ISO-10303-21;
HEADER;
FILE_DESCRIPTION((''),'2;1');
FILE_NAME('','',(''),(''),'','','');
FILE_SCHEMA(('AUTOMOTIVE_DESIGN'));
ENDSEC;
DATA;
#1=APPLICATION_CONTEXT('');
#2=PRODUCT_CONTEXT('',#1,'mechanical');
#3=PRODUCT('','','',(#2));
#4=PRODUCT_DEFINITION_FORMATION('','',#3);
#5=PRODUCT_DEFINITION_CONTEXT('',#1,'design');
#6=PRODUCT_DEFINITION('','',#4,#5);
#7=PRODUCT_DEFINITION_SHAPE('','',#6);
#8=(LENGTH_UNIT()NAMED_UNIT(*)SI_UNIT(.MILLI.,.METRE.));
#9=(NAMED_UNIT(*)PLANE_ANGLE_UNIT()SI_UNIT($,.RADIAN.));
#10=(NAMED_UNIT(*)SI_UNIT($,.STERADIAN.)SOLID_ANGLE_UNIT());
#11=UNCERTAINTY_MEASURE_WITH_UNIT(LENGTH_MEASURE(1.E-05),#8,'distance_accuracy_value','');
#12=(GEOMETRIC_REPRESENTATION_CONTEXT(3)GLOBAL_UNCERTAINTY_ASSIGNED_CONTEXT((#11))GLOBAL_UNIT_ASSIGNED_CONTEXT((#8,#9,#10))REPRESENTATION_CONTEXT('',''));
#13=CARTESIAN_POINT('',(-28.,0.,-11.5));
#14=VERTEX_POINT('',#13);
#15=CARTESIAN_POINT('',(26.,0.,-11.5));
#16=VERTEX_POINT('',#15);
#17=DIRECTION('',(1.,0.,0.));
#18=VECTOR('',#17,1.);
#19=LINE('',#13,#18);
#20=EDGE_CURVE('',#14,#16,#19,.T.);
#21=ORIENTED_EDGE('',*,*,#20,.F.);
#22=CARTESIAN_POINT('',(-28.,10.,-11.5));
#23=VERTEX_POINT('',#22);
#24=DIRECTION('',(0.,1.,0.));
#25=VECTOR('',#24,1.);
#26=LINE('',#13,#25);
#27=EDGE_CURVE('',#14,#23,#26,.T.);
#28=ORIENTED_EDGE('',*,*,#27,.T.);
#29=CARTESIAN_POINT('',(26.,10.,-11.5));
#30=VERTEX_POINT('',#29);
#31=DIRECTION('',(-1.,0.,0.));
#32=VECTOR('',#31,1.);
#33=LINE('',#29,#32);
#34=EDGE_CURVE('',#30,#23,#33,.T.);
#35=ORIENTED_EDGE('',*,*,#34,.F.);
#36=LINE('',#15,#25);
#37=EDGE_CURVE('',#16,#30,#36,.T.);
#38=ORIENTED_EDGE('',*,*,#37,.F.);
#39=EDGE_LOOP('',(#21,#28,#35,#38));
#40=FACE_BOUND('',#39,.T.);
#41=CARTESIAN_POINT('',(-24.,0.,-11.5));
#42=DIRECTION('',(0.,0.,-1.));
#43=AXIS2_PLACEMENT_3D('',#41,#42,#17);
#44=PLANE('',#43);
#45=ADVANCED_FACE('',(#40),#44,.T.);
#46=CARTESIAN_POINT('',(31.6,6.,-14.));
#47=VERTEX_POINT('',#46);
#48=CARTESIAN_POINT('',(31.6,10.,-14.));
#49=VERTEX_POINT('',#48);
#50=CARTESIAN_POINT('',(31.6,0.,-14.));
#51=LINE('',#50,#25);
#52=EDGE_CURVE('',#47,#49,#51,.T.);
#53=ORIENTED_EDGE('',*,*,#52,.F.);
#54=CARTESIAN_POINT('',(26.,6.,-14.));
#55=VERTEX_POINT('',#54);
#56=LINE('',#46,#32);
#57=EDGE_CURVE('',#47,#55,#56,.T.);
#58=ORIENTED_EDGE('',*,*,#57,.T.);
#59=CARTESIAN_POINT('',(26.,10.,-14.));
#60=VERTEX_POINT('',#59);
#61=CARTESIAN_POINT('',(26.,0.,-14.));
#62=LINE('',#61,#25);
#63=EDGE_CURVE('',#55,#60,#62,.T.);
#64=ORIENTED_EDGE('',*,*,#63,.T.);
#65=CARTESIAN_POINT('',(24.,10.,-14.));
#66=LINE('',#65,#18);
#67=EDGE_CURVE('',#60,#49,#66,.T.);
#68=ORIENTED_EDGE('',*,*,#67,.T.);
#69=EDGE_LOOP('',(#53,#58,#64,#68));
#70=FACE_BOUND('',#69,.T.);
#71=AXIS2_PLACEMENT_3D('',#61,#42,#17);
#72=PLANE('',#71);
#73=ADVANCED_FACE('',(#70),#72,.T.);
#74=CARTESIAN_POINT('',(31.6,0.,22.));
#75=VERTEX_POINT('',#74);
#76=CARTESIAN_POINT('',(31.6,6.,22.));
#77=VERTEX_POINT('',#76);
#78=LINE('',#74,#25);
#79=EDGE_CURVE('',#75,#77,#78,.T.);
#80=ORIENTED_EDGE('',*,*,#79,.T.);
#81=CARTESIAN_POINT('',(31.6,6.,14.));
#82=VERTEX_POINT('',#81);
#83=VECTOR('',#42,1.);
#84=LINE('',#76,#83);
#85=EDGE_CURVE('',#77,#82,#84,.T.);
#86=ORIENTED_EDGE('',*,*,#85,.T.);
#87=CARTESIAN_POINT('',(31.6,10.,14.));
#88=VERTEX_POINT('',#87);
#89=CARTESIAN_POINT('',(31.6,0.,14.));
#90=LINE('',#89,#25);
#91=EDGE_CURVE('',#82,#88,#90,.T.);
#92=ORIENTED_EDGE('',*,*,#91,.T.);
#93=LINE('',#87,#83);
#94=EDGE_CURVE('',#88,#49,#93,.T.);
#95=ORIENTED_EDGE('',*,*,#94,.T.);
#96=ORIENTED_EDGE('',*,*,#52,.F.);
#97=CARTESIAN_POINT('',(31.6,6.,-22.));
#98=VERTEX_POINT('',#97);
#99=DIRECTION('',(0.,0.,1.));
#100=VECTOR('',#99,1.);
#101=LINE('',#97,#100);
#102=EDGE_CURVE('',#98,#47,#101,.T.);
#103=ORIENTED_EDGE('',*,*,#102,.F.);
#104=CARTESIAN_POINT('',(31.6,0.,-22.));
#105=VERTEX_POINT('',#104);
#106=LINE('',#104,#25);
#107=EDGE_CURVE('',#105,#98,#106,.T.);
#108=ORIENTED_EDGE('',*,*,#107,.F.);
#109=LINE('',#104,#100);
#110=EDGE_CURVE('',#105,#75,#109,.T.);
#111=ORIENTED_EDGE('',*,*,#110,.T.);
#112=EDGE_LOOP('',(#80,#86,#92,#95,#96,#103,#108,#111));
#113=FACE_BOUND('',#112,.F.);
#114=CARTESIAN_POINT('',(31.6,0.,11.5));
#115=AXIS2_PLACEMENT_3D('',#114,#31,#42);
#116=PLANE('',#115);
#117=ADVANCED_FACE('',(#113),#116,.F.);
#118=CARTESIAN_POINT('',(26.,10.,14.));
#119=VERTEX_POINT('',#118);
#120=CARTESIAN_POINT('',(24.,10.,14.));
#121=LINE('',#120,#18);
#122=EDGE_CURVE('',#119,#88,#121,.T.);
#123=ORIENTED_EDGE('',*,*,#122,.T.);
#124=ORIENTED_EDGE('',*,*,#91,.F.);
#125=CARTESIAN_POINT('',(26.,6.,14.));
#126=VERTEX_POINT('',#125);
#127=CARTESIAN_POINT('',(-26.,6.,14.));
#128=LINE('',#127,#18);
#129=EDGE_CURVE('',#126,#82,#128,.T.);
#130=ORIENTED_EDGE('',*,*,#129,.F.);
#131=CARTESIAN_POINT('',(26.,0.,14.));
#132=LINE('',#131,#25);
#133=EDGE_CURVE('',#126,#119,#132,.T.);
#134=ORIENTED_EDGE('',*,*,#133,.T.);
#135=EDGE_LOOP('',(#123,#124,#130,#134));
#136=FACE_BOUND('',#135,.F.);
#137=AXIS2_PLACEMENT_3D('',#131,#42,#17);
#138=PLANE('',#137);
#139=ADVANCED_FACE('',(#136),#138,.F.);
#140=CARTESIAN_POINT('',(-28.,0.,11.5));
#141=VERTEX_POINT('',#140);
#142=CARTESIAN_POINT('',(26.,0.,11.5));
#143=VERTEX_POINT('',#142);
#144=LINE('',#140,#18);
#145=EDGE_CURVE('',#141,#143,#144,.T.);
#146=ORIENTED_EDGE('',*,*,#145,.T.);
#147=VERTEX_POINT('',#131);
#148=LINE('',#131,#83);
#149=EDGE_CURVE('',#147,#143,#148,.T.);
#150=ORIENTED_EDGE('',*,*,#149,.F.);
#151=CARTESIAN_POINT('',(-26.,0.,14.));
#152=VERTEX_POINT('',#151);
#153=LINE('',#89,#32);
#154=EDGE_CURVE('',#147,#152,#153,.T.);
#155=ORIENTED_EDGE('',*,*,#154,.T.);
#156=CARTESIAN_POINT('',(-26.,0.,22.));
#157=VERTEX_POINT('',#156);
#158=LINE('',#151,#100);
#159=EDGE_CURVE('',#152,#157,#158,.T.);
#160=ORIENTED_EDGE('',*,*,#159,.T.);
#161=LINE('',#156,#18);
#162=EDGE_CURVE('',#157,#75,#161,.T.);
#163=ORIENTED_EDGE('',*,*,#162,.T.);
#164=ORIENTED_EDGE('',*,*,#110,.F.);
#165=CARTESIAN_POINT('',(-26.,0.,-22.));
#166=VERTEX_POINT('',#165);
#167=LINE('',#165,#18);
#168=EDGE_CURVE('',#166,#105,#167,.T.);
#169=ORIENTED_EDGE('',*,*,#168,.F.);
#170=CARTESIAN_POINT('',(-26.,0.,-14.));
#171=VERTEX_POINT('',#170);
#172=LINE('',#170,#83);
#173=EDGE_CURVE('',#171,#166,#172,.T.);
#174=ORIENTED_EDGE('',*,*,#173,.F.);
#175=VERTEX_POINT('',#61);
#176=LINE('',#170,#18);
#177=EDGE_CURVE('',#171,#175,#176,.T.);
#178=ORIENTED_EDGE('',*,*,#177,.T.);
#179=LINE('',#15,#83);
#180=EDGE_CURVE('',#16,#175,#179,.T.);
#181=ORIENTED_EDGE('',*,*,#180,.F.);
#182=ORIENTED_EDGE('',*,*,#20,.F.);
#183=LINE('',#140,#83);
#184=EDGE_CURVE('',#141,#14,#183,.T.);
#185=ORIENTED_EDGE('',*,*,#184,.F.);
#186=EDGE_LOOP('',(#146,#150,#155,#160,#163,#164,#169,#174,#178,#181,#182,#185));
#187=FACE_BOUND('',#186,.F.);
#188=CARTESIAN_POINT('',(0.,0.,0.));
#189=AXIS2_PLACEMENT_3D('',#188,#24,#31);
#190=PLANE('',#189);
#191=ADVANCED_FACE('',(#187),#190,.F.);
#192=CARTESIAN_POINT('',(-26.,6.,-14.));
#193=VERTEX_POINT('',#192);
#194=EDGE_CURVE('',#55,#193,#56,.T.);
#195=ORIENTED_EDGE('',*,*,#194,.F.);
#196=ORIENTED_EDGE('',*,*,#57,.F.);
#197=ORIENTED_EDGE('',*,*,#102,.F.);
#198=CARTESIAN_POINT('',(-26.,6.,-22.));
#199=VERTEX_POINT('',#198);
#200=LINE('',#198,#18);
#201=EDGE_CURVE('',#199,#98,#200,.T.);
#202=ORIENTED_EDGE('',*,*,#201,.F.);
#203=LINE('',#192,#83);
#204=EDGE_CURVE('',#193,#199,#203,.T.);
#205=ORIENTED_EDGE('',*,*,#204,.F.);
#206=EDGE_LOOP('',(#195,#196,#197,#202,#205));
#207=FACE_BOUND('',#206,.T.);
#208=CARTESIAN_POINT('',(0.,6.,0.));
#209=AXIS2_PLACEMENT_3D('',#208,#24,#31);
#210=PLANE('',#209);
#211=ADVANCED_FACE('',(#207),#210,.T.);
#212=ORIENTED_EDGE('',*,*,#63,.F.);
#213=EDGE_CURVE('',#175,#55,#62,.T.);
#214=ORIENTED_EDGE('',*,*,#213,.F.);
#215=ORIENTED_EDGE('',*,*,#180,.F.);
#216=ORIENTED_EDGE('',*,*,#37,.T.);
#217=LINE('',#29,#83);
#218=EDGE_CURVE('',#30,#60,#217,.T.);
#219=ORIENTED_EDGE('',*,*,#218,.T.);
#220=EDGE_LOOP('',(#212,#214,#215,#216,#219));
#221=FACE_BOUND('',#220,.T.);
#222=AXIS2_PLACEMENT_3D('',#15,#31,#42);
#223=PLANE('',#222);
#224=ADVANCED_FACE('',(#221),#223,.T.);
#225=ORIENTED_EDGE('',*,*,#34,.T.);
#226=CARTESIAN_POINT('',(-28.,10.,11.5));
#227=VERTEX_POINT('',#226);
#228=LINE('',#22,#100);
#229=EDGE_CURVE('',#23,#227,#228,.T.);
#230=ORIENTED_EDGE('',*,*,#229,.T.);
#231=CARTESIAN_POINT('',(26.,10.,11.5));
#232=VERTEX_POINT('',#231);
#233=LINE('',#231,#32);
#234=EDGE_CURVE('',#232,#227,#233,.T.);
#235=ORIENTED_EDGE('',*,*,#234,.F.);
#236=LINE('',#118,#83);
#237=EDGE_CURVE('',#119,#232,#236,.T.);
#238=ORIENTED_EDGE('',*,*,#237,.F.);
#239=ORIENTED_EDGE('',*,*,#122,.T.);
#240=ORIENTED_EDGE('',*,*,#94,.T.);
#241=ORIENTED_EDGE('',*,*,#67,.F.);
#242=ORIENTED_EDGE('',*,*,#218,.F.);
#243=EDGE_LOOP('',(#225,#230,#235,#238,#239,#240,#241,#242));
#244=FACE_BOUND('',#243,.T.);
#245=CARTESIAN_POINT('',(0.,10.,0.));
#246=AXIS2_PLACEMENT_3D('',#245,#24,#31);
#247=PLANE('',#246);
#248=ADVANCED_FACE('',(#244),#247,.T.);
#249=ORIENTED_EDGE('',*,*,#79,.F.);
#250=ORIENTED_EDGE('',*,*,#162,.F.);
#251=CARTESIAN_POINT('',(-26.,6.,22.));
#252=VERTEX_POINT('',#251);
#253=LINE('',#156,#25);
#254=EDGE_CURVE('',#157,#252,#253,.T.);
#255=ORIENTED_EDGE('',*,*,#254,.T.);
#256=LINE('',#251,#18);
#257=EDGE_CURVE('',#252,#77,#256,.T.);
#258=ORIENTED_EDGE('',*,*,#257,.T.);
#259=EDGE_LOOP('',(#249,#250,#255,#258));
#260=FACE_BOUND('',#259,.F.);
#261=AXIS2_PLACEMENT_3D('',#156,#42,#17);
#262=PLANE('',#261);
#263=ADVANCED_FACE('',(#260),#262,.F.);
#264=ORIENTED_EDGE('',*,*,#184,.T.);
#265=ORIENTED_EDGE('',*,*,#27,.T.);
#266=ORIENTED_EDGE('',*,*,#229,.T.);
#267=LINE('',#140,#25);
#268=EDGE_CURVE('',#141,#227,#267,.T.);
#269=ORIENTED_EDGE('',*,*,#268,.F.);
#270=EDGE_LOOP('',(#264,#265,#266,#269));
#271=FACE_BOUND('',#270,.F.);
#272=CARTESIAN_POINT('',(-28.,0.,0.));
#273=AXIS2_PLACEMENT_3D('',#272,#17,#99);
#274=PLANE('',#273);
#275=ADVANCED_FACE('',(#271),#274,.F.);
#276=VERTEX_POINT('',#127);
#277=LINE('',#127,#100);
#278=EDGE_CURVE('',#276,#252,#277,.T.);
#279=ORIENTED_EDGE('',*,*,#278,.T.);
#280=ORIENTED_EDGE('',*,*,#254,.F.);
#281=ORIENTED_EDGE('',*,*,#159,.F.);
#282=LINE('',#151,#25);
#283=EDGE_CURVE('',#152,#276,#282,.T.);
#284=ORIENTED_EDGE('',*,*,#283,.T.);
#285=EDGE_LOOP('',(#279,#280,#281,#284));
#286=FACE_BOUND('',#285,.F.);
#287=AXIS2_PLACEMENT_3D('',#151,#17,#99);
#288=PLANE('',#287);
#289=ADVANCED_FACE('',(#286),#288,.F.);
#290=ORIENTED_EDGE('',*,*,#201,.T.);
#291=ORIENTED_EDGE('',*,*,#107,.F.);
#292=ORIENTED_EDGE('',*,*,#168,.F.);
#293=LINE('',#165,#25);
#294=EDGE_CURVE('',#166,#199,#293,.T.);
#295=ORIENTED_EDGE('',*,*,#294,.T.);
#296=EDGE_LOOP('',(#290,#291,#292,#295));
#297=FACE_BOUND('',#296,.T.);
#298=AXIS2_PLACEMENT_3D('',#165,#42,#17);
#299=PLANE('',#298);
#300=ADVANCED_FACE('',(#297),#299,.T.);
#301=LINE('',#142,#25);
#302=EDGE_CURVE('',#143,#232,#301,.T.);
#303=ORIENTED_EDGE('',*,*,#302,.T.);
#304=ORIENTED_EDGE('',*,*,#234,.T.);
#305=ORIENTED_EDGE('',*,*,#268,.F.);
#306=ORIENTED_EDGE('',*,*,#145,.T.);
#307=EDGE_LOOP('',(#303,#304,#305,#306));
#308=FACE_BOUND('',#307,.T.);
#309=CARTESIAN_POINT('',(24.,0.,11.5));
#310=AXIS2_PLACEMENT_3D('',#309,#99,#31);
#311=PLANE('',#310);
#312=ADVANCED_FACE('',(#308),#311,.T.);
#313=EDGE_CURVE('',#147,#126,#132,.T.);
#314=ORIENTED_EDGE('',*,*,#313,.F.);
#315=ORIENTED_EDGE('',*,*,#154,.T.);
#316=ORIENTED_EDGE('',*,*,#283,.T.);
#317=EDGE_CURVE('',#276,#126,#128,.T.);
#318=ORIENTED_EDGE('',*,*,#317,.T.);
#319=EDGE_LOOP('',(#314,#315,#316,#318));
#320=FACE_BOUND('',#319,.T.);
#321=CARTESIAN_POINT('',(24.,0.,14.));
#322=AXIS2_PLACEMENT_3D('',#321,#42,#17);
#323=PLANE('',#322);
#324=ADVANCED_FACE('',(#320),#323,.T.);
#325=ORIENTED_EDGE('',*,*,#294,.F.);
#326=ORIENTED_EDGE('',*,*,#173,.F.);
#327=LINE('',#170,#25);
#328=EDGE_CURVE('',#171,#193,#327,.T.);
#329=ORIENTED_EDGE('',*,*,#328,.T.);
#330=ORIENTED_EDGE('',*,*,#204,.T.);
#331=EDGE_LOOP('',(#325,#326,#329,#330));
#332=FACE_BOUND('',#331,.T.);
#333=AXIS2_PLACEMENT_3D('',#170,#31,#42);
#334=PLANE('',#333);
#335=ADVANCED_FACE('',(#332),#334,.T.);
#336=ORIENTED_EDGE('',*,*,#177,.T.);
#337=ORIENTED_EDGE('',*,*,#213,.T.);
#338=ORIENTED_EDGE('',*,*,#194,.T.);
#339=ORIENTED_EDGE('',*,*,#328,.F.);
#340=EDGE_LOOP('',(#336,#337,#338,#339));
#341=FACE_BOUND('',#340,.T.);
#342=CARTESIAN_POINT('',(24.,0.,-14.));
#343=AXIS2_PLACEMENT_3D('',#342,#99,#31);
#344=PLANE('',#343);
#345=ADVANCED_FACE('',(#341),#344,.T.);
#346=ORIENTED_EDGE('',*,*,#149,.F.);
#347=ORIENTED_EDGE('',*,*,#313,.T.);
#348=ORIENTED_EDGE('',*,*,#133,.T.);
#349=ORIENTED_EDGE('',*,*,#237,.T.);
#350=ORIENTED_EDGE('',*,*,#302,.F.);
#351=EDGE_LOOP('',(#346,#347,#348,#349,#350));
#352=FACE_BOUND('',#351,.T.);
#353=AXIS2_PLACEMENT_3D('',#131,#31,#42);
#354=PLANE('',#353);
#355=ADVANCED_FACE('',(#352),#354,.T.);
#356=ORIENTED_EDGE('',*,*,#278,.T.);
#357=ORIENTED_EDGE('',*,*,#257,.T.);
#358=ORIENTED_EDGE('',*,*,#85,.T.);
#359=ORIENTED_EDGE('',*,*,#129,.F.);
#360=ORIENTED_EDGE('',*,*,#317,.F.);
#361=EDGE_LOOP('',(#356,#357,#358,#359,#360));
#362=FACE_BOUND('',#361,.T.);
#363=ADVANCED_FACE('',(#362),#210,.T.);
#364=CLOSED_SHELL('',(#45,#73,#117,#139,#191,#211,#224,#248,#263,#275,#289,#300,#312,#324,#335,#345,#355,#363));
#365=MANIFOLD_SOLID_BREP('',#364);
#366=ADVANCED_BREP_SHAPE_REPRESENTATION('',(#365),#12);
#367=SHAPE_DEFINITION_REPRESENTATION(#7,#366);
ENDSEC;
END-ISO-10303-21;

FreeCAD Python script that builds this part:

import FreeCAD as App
import Part
import Sketcher
from FreeCAD import Vector


def add_polygon(sketch, points):
    """Adds a closed chain of lines whose ends are joined by coincident constraints."""
    first, n = sketch.GeometryCount, len(points)
    for a, b in zip(points, points[1:] + points[:1]):
        sketch.addGeometry(Part.LineSegment(App.Vector(*a, 0), App.Vector(*b, 0)), False)
    for i in range(n):
        sketch.addConstraint(Sketcher.Constraint("Coincident", first + i, 2, first + (i + 1) % n, 1))

doc = App.newDocument("Part")
body = doc.addObject("PartDesign::Body", "Body")

# Sketch on XZ plane
sketch1 = body.newObject("Sketcher::SketchObject", "Sketch")
sketch1.AttachmentSupport = (doc.getObject("XZ_Plane"), [""])
sketch1.MapMode = "FlatFace"
add_polygon(sketch1, [(26, 11.5), (26, 14), (31.6, 14), (31.6, -14), (26, -14), (26, -11.5), (-28, -11.5), (-28, 11.5)])  # lines 0-7
sketch1.addConstraint([
    Sketcher.Constraint("Vertical", 0),
    Sketcher.Constraint("Horizontal", 1),
    Sketcher.Constraint("Vertical", 2),
    Sketcher.Constraint("Horizontal", 3),
    Sketcher.Constraint("Vertical", 4),
    Sketcher.Constraint("Horizontal", 5),
    Sketcher.Constraint("Vertical", 6),
    Sketcher.Constraint("Horizontal", 7),
    Sketcher.Constraint("Symmetric", 0, 2, 3, 2, -1),
    Sketcher.Constraint("Equal", 0, 4),
    Sketcher.Constraint("DistanceY", 6, 1, 6, 2, 23.0),
    Sketcher.Constraint("DistanceY", 0, 1, 0, 2, 2.5),
    Sketcher.Constraint("DistanceX", 5, 2, 5, 1, 54.0),
    Sketcher.Constraint("DistanceX", 1, 1, 1, 2, 5.6),
    Sketcher.Constraint("DistanceX", -1, 1, 0, 2, 26.0),
])
pad1 = body.newObject("PartDesign::Pad", "Pad")
pad1.Profile = sketch1
pad1.Length = 10
pad1.Reversed = True

# Sketch on XZ plane
sketch2 = body.newObject("Sketcher::SketchObject", "Sketch001")
sketch2.AttachmentSupport = (doc.getObject("XZ_Plane"), [""])
sketch2.MapMode = "FlatFace"
add_polygon(sketch2, [(31.6, 14), (-26, 14), (-26, 22), (31.6, 22)])  # lines 0-3
add_polygon(sketch2, [(-26, -14), (31.6, -14), (31.6, -22), (-26, -22)])  # lines 4-7
sketch2.addConstraint([
    Sketcher.Constraint("Horizontal", 0),
    Sketcher.Constraint("Vertical", 1),
    Sketcher.Constraint("Horizontal", 2),
    Sketcher.Constraint("Vertical", 3),
    Sketcher.Constraint("Horizontal", 4),
    Sketcher.Constraint("Vertical", 5),
    Sketcher.Constraint("Horizontal", 6),
    Sketcher.Constraint("Vertical", 7),
    Sketcher.Constraint("Symmetric", 3, 2, 4, 2, -1),
    Sketcher.Constraint("Symmetric", 1, 2, 6, 2, -1),
    Sketcher.Constraint("DistanceY", 1, 1, 1, 2, 8.0),
    Sketcher.Constraint("DistanceX", 0, 2, 0, 1, 57.6),
    Sketcher.Constraint("DistanceX", 0, 2, -1, 1, 26.0),
    Sketcher.Constraint("DistanceY", -1, 1, 0, 2, 14.0),
])
pad2 = body.newObject("PartDesign::Pad", "Pad001")
pad2.Profile = sketch2
pad2.Length = 6
pad2.Reversed = True

doc.recompute()
